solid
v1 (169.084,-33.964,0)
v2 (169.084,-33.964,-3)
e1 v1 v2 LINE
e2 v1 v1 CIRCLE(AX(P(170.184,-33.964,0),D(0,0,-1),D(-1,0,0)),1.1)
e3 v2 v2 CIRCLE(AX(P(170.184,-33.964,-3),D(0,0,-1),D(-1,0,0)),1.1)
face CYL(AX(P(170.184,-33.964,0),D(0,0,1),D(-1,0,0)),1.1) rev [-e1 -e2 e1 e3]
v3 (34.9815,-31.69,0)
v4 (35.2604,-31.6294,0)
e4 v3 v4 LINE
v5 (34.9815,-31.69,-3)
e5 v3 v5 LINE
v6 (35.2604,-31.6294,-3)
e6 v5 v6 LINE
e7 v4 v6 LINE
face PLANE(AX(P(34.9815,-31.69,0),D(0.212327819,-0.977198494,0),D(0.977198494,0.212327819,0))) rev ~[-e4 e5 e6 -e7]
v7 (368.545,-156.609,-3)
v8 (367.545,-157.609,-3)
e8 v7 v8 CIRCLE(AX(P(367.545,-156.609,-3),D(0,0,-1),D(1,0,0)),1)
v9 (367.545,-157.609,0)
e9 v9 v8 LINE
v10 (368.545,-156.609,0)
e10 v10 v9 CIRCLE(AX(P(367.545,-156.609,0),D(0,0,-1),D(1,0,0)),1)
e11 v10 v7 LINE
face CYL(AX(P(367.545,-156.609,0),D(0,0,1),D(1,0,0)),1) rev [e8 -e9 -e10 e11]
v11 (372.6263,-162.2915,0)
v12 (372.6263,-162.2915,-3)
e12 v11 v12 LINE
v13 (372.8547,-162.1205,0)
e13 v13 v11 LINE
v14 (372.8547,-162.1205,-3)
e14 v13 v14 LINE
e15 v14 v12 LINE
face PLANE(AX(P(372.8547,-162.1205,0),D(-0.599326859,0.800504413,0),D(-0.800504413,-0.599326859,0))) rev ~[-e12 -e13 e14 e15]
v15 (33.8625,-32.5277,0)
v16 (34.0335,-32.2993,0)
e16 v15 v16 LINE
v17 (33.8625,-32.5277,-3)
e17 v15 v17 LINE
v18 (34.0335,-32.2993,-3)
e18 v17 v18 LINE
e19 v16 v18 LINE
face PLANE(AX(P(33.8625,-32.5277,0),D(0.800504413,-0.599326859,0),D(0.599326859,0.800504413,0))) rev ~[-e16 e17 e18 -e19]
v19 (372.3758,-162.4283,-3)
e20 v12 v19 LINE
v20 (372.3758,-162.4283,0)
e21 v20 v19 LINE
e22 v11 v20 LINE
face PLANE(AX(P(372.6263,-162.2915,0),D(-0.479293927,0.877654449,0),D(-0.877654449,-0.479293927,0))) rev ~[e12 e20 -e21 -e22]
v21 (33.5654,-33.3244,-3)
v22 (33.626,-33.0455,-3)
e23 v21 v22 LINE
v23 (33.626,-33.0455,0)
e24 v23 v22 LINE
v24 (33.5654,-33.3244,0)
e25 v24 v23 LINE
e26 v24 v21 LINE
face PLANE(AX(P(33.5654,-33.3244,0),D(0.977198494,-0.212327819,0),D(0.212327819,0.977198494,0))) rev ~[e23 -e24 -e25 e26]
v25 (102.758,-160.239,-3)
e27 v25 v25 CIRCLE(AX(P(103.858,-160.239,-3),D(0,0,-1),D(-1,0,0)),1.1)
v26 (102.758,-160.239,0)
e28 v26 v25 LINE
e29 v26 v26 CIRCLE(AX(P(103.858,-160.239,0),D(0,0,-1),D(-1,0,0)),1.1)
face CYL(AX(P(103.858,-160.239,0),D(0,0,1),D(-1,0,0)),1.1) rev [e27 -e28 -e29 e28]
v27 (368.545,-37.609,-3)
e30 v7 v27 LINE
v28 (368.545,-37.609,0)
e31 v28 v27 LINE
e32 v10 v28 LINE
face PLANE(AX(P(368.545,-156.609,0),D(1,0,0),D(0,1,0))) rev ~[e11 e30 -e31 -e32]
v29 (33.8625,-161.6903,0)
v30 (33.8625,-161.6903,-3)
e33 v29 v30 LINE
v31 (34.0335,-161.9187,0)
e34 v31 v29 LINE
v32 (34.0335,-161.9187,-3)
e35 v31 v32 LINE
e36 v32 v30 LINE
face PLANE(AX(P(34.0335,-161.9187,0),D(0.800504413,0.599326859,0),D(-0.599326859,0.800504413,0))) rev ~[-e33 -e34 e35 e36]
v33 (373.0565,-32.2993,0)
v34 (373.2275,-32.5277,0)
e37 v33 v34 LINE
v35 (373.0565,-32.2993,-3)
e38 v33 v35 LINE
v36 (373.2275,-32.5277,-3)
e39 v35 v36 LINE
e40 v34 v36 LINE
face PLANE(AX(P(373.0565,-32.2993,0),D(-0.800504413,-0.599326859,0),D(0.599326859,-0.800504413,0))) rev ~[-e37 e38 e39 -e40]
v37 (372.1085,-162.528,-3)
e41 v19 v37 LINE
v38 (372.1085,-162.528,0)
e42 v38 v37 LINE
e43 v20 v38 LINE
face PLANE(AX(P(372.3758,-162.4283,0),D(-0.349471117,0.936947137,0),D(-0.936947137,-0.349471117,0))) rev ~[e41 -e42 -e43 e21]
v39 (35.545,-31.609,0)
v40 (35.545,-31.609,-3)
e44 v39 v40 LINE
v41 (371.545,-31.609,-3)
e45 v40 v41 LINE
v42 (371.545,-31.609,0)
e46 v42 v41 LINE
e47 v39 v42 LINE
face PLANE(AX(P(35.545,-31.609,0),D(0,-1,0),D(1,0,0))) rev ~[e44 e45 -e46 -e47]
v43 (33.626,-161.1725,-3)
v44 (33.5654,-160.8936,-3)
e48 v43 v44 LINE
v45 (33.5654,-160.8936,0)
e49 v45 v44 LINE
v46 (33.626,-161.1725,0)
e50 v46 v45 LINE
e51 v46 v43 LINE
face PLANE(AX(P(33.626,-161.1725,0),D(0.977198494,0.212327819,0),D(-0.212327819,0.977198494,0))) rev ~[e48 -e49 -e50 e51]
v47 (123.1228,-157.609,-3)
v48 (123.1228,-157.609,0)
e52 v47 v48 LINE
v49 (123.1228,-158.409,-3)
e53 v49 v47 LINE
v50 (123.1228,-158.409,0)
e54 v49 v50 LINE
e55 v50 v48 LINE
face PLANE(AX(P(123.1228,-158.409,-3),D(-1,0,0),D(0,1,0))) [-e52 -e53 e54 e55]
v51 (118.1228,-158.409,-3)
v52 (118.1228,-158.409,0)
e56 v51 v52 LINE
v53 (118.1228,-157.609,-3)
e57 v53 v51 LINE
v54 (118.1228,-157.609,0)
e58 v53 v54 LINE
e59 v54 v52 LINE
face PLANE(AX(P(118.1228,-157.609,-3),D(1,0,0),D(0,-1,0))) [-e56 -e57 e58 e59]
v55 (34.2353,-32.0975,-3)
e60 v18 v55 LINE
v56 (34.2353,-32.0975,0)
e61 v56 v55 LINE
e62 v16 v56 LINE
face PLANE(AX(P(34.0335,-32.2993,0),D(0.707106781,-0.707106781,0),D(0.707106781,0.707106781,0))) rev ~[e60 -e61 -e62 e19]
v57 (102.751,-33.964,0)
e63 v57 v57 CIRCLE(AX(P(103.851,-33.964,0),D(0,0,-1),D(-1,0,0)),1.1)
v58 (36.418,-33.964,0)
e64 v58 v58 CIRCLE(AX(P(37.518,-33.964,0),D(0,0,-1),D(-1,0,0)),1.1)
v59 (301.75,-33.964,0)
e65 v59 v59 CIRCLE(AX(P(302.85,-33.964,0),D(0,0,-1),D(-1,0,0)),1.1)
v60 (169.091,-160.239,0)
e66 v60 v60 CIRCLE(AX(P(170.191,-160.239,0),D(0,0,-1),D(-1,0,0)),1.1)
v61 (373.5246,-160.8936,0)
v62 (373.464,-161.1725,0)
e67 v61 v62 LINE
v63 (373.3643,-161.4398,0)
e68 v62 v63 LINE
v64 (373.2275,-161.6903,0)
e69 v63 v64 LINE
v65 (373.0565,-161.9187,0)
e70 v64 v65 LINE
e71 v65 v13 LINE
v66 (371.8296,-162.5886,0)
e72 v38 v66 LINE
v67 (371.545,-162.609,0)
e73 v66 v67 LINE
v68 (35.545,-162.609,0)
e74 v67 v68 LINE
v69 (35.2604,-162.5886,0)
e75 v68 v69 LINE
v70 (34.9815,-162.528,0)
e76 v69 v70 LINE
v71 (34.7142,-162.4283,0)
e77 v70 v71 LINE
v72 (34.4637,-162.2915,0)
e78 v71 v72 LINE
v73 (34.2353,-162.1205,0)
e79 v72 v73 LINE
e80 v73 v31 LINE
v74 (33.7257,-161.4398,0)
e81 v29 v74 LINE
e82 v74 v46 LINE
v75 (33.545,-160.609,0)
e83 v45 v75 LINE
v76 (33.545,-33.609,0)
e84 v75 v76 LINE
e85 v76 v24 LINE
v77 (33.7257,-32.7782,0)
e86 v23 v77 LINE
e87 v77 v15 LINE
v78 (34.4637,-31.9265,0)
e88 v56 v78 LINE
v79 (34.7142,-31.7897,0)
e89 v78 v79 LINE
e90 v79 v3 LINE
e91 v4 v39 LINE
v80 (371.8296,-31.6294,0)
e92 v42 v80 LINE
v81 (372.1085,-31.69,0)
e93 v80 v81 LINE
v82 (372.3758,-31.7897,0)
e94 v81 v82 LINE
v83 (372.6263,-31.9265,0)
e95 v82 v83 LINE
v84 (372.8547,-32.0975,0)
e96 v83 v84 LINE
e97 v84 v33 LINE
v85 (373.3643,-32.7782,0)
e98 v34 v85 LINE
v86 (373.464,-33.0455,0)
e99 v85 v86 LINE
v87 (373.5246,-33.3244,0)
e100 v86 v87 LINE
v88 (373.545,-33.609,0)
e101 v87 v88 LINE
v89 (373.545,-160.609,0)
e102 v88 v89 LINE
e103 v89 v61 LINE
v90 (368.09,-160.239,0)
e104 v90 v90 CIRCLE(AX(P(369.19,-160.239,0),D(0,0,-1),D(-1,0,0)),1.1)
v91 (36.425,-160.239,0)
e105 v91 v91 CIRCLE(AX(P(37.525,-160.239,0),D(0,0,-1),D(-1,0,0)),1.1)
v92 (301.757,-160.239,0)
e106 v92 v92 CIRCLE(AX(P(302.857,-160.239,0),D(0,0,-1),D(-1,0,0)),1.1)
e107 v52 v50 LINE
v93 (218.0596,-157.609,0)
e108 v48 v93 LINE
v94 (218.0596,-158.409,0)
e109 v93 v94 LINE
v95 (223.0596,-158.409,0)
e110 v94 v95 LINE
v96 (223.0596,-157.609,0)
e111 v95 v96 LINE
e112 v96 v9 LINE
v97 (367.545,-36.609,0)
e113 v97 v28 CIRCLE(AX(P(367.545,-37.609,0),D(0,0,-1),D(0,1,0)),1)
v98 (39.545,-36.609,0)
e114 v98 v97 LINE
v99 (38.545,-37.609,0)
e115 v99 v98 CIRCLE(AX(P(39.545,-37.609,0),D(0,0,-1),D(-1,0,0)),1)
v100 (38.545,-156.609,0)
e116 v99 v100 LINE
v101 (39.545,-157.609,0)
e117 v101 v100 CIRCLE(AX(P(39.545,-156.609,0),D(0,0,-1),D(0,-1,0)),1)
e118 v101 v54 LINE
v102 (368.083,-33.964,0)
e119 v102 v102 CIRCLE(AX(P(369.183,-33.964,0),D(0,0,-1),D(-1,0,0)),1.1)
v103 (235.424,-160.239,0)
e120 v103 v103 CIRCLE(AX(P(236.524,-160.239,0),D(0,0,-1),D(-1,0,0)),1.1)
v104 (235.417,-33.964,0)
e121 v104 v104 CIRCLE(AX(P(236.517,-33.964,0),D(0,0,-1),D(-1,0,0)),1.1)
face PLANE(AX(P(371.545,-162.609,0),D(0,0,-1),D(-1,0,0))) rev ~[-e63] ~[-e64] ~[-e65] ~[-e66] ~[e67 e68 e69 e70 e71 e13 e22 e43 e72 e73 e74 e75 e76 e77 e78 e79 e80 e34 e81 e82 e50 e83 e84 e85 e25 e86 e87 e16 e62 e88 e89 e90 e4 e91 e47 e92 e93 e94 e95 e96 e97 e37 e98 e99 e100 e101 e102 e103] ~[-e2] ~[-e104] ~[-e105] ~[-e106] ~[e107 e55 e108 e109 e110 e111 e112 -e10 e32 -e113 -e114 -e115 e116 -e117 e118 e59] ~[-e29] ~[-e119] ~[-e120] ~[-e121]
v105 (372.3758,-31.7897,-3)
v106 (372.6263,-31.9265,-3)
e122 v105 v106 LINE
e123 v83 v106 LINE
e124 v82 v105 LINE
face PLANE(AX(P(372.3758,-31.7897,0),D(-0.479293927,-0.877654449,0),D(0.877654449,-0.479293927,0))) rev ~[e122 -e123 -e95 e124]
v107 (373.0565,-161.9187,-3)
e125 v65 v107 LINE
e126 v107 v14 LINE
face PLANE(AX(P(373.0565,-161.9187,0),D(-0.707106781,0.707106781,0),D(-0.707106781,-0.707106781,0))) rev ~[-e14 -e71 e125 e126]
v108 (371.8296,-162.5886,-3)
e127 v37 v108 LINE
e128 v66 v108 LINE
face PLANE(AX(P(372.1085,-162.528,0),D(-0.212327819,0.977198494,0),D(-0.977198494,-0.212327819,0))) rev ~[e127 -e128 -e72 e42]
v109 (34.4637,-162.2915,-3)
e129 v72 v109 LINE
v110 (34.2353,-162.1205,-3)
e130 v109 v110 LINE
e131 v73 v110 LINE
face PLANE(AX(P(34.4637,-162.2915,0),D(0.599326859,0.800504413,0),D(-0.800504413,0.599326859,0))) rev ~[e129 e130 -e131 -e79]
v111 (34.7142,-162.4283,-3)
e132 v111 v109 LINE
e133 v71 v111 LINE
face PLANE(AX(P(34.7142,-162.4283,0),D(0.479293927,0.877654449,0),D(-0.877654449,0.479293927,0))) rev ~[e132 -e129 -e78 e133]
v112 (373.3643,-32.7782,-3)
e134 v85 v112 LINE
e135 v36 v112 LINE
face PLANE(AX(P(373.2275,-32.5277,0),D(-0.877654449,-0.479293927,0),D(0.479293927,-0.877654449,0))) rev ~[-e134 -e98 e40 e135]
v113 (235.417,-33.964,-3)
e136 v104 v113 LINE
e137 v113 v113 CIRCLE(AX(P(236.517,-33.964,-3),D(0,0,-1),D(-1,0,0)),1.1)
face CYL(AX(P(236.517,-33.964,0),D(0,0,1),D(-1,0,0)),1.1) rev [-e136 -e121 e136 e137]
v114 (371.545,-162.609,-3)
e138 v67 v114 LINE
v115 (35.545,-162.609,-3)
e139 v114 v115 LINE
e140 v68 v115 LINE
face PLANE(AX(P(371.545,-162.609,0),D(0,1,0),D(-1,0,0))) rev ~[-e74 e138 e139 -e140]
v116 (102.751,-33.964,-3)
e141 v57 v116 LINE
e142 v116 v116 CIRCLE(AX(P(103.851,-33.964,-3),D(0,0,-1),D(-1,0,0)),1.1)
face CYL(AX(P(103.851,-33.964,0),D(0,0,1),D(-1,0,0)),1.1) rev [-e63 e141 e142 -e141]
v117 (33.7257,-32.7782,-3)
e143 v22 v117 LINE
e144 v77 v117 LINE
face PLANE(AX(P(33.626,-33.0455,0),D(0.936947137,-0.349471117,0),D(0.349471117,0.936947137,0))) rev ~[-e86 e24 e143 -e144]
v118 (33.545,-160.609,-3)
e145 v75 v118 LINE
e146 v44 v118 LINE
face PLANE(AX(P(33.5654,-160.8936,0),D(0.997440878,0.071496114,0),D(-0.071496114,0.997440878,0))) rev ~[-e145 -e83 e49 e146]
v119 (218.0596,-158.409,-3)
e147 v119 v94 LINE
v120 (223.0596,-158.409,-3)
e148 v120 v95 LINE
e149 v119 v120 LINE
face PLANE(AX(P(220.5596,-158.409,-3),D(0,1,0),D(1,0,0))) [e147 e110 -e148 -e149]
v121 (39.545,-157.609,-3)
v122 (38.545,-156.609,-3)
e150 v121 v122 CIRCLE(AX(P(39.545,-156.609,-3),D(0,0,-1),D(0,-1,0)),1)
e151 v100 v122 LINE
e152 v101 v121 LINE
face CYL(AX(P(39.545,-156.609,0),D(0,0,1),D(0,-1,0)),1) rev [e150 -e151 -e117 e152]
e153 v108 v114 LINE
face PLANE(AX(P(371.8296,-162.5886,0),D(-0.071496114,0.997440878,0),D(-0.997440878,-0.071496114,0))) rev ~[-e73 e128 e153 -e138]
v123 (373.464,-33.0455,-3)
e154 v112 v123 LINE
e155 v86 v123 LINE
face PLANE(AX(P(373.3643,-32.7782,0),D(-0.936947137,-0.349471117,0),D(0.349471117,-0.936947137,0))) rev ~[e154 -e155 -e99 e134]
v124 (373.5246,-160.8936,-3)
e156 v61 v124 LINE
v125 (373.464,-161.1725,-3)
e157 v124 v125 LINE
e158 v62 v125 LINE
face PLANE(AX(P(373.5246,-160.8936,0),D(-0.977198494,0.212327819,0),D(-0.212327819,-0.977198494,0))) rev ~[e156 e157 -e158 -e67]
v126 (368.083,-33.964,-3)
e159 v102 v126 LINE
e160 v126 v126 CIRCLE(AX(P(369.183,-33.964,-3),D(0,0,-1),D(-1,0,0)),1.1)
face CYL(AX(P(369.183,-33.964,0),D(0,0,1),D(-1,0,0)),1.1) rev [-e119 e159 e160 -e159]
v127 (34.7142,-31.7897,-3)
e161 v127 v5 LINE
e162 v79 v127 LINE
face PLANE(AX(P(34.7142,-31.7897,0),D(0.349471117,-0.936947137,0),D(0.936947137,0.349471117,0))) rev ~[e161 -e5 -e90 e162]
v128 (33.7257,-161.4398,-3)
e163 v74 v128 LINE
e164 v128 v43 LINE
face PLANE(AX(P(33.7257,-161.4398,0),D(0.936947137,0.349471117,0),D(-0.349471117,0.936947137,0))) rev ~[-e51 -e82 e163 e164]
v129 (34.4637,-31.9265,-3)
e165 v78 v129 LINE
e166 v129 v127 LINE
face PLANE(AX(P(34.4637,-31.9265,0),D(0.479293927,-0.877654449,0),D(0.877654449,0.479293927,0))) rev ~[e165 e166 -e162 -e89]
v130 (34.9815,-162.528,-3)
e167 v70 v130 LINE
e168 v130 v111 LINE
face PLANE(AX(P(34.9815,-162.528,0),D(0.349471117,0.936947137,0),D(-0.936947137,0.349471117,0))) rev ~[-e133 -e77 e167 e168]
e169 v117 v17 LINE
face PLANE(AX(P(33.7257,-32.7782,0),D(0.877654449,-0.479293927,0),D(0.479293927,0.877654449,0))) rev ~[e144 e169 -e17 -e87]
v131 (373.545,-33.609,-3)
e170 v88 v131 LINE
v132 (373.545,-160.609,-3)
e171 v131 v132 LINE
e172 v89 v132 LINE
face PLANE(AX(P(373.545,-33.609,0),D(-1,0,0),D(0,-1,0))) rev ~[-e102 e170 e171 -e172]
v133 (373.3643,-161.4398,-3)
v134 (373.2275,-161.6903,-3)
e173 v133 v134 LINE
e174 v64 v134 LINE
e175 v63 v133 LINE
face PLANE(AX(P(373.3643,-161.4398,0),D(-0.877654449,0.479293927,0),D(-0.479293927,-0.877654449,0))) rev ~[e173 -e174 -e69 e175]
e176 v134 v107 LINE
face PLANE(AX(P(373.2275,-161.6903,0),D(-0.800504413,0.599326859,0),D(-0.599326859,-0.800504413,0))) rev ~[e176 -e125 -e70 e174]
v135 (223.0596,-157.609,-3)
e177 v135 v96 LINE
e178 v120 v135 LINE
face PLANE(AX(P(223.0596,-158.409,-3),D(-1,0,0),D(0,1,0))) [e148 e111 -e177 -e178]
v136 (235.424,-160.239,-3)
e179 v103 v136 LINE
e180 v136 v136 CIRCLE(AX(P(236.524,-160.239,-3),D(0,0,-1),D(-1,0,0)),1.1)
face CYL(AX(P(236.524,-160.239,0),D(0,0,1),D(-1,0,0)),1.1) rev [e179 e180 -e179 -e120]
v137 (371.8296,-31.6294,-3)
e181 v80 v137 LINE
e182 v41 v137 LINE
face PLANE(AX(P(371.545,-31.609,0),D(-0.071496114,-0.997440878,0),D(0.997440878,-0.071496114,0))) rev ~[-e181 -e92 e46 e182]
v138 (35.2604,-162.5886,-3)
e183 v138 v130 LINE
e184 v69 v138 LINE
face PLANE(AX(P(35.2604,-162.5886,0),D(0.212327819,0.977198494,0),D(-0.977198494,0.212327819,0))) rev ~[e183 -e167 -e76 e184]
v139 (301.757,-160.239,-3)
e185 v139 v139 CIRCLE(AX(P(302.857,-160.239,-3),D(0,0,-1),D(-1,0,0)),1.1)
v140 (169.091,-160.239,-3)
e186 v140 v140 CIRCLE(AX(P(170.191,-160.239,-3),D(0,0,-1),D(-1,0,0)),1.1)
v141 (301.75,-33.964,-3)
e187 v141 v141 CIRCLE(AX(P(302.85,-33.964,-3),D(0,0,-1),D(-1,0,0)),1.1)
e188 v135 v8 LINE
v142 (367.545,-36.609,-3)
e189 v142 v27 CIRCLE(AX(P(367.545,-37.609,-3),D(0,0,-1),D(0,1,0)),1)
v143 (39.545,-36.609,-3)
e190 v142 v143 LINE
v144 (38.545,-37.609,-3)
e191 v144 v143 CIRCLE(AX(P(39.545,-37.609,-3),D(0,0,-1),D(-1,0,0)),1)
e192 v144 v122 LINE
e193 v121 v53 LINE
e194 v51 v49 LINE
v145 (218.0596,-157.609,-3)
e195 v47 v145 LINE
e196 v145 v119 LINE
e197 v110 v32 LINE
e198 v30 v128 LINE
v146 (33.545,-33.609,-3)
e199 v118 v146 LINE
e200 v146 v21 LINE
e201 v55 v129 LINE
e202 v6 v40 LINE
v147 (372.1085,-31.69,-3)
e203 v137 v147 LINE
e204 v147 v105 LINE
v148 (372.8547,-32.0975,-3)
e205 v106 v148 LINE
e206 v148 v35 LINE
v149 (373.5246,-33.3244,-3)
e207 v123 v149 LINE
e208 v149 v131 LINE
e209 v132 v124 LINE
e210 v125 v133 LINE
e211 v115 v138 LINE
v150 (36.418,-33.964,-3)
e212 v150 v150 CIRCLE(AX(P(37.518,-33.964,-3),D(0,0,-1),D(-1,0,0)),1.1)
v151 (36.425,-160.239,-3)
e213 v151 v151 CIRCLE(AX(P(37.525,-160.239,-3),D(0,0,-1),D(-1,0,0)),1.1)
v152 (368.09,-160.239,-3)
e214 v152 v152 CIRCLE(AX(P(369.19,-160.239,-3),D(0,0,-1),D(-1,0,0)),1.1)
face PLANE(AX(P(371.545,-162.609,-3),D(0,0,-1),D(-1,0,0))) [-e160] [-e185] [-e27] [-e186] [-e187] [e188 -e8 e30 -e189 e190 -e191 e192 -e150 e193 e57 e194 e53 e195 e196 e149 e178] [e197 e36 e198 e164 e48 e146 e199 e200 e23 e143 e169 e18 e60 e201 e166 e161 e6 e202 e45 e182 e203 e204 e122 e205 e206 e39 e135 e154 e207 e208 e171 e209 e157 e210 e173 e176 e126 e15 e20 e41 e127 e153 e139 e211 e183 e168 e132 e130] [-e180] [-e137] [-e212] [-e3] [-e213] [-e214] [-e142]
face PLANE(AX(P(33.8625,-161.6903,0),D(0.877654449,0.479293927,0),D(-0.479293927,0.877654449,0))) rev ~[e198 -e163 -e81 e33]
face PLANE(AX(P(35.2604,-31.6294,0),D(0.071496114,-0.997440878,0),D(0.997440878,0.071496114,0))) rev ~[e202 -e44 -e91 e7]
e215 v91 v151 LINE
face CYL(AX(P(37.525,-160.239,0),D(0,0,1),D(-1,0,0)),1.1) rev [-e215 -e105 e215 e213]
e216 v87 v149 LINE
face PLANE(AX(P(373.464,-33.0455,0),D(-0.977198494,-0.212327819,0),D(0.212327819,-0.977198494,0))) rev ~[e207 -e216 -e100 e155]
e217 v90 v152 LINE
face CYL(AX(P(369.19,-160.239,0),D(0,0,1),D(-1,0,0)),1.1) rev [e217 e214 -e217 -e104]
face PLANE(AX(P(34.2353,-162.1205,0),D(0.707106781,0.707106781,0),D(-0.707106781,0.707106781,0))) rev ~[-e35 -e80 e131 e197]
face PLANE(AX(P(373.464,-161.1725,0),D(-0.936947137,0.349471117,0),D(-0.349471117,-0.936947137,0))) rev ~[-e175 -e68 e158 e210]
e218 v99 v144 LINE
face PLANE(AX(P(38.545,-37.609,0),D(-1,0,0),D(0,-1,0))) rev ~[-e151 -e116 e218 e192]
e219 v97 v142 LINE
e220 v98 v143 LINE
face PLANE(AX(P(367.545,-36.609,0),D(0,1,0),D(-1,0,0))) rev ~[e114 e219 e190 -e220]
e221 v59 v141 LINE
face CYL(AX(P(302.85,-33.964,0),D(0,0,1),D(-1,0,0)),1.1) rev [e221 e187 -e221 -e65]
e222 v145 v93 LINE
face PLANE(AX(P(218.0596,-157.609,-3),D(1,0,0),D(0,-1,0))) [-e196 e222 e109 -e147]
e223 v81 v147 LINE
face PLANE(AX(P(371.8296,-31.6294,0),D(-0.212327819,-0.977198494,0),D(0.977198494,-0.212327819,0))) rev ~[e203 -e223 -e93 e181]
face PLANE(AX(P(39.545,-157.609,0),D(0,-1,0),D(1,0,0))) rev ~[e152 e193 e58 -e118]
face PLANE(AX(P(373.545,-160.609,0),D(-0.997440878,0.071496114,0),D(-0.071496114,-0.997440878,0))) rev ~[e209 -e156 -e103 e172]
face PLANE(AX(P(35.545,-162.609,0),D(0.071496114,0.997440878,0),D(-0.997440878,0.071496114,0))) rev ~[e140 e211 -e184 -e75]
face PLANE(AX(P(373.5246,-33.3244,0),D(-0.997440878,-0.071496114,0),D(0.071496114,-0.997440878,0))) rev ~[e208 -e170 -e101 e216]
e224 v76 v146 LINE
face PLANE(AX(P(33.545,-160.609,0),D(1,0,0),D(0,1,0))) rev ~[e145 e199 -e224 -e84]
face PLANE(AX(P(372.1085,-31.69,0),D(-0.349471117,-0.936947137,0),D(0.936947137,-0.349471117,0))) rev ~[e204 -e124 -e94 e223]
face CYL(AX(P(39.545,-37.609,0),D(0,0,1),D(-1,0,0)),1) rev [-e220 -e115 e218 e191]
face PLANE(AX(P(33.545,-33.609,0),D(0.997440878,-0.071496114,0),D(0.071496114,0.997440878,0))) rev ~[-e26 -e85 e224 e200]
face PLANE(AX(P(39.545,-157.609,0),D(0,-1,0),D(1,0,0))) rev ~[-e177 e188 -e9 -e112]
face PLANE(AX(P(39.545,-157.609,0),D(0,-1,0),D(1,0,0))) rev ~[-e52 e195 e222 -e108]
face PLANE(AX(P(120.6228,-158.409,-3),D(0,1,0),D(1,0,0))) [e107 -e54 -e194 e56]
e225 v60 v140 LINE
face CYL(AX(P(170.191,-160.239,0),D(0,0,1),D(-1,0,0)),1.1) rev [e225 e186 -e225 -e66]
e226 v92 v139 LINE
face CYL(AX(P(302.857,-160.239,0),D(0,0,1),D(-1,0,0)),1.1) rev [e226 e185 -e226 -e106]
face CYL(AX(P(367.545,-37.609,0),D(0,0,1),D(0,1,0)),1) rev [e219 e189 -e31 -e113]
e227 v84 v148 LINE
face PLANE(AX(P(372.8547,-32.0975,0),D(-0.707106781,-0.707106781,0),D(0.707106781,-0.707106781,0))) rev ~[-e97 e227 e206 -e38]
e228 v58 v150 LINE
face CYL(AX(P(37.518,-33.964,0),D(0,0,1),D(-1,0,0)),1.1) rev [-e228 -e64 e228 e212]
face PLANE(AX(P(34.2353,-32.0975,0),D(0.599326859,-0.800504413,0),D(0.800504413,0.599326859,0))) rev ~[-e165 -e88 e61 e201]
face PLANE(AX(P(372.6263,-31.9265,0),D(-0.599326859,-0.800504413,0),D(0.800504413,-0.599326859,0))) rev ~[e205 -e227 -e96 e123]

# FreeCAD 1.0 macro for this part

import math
import FreeCAD as App
import Part
import Sketcher

V = App.Vector
Q = App.Units.Quantity

doc = App.newDocument("Part")
body = doc.addObject("PartDesign::Body", "Body")

# Sketch on XY plane
sketch1 = body.newObject("Sketcher::SketchObject", "Sketch")
sketch1.AttachmentSupport = (doc.getObject("XY_Plane"), [""])
sketch1.MapMode = "FlatFace"
sketch1.addGeometry([
    Part.LineSegment(V(35.2604, -31.6294, 0), V(35.545, -31.609, 0)),  # 0
    Part.LineSegment(V(35.545, -31.609, 0), V(371.545, -31.609, 0)),  # 1
    Part.LineSegment(V(371.545, -31.609, 0), V(371.8296, -31.6294, 0)),  # 2
    Part.LineSegment(V(371.8296, -31.6294, 0), V(372.1085, -31.69, 0)),  # 3
    Part.LineSegment(V(372.1085, -31.69, 0), V(372.3758, -31.7897, 0)),  # 4
    Part.LineSegment(V(372.3758, -31.7897, 0), V(372.6263, -31.9265, 0)),  # 5
    Part.LineSegment(V(372.6263, -31.9265, 0), V(372.8547, -32.0975, 0)),  # 6
    Part.LineSegment(V(372.8547, -32.0975, 0), V(373.0565, -32.2993, 0)),  # 7
    Part.LineSegment(V(373.0565, -32.2993, 0), V(373.2275, -32.5277, 0)),  # 8
    Part.LineSegment(V(373.2275, -32.5277, 0), V(373.3643, -32.7782, 0)),  # 9
    Part.LineSegment(V(373.3643, -32.7782, 0), V(373.464, -33.0455, 0)),  # 10
    Part.LineSegment(V(373.464, -33.0455, 0), V(373.5246, -33.3244, 0)),  # 11
    Part.LineSegment(V(373.5246, -33.3244, 0), V(373.545, -33.609, 0)),  # 12
    Part.LineSegment(V(373.545, -33.609, 0), V(373.545, -160.609, 0)),  # 13
    Part.LineSegment(V(373.545, -160.609, 0), V(373.5246, -160.8936, 0)),  # 14
    Part.LineSegment(V(373.5246, -160.8936, 0), V(373.464, -161.1725, 0)),  # 15
    Part.LineSegment(V(373.464, -161.1725, 0), V(373.3643, -161.4398, 0)),  # 16
    Part.LineSegment(V(373.3643, -161.4398, 0), V(373.2275, -161.6903, 0)),  # 17
    Part.LineSegment(V(373.2275, -161.6903, 0), V(373.0565, -161.9187, 0)),  # 18
    Part.LineSegment(V(373.0565, -161.9187, 0), V(372.8547, -162.1205, 0)),  # 19
    Part.LineSegment(V(372.8547, -162.1205, 0), V(372.6263, -162.2915, 0)),  # 20
    Part.LineSegment(V(372.6263, -162.2915, 0), V(372.3758, -162.4283, 0)),  # 21
    Part.LineSegment(V(372.3758, -162.4283, 0), V(372.1085, -162.528, 0)),  # 22
    Part.LineSegment(V(372.1085, -162.528, 0), V(371.8296, -162.5886, 0)),  # 23
    Part.LineSegment(V(371.8296, -162.5886, 0), V(371.545, -162.609, 0)),  # 24
    Part.LineSegment(V(371.545, -162.609, 0), V(35.545, -162.609, 0)),  # 25
    Part.LineSegment(V(35.545, -162.609, 0), V(35.2604, -162.5886, 0)),  # 26
    Part.LineSegment(V(35.2604, -162.5886, 0), V(34.9815, -162.528, 0)),  # 27
    Part.LineSegment(V(34.9815, -162.528, 0), V(34.7142, -162.4283, 0)),  # 28
    Part.LineSegment(V(34.7142, -162.4283, 0), V(34.4637, -162.2915, 0)),  # 29
    Part.LineSegment(V(34.4637, -162.2915, 0), V(34.2353, -162.1205, 0)),  # 30
    Part.LineSegment(V(34.2353, -162.1205, 0), V(34.0335, -161.9187, 0)),  # 31
    Part.LineSegment(V(34.0335, -161.9187, 0), V(33.8625, -161.6903, 0)),  # 32
    Part.LineSegment(V(33.8625, -161.6903, 0), V(33.7257, -161.4398, 0)),  # 33
    Part.LineSegment(V(33.7257, -161.4398, 0), V(33.626, -161.1725, 0)),  # 34
    Part.LineSegment(V(33.626, -161.1725, 0), V(33.5654, -160.8936, 0)),  # 35
    Part.LineSegment(V(33.5654, -160.8936, 0), V(33.545, -160.609, 0)),  # 36
    Part.LineSegment(V(33.545, -160.609, 0), V(33.545, -33.609, 0)),  # 37
    Part.LineSegment(V(33.545, -33.609, 0), V(33.5654, -33.3244, 0)),  # 38
    Part.LineSegment(V(33.5654, -33.3244, 0), V(33.626, -33.0455, 0)),  # 39
    Part.LineSegment(V(33.626, -33.0455, 0), V(33.7257, -32.7782, 0)),  # 40
    Part.LineSegment(V(33.7257, -32.7782, 0), V(33.8625, -32.5277, 0)),  # 41
    Part.LineSegment(V(33.8625, -32.5277, 0), V(34.0335, -32.2993, 0)),  # 42
    Part.LineSegment(V(34.0335, -32.2993, 0), V(34.2353, -32.0975, 0)),  # 43
    Part.LineSegment(V(34.2353, -32.0975, 0), V(34.4637, -31.9265, 0)),  # 44
    Part.LineSegment(V(34.4637, -31.9265, 0), V(34.7142, -31.7897, 0)),  # 45
    Part.LineSegment(V(34.7142, -31.7897, 0), V(34.9815, -31.69, 0)),  # 46
    Part.LineSegment(V(34.9815, -31.69, 0), V(35.2604, -31.6294, 0)),  # 47
    Part.Circle(V(369.19, -160.239, 0), V(0, 0, 1), 1.1),  # 48
    Part.Circle(V(302.857, -160.239, 0), V(0, 0, 1), 1.1),  # 49
    Part.Circle(V(236.524, -160.239, 0), V(0, 0, 1), 1.1),  # 50
    Part.Circle(V(170.191, -160.239, 0), V(0, 0, 1), 1.1),  # 51
    Part.Circle(V(103.858, -160.239, 0), V(0, 0, 1), 1.1),  # 52
    Part.Circle(V(37.525, -160.239, 0), V(0, 0, 1), 1.1),  # 53
    Part.Circle(V(369.183, -33.964, 0), V(0, 0, 1), 1.1),  # 54
    Part.Circle(V(302.85, -33.964, 0), V(0, 0, 1), 1.1),  # 55
    Part.Circle(V(236.517, -33.964, 0), V(0, 0, 1), 1.1),  # 56
    Part.LineSegment(V(367.545, -36.609, 0), V(39.545, -36.609, 0)),  # 57
    Part.ArcOfCircle(Part.Circle(V(39.545, -37.609, 0), V(0, 0, 1), 1), math.radians(90), math.radians(180)),  # 58
    Part.LineSegment(V(38.545, -37.609, 0), V(38.545, -156.609, 0)),  # 59
    Part.ArcOfCircle(Part.Circle(V(39.545, -156.609, 0), V(0, 0, 1), 1), math.radians(180), math.radians(270)),  # 60
    Part.LineSegment(V(39.545, -157.609, 0), V(367.545, -157.609, 0)),  # 61
    Part.ArcOfCircle(Part.Circle(V(367.545, -156.609, 0), V(0, 0, 1), 1), math.radians(-90), math.radians(0)),  # 62
    Part.LineSegment(V(368.545, -156.609, 0), V(368.545, -37.609, 0)),  # 63
    Part.ArcOfCircle(Part.Circle(V(367.545, -37.609, 0), V(0, 0, 1), 1), math.radians(0), math.radians(90)),  # 64
    Part.Circle(V(170.184, -33.964, 0), V(0, 0, 1), 1.1),  # 65
    Part.Circle(V(103.851, -33.964, 0), V(0, 0, 1), 1.1),  # 66
    Part.Circle(V(37.518, -33.964, 0), V(0, 0, 1), 1.1),  # 67
], False)
sketch1.addConstraint([
    Sketcher.Constraint("Coincident", 0, 2, 1, 1),
    Sketcher.Constraint("Coincident", 1, 2, 2, 1),
    Sketcher.Constraint("Coincident", 2, 2, 3, 1),
    Sketcher.Constraint("Coincident", 3, 2, 4, 1),
    Sketcher.Constraint("Coincident", 4, 2, 5, 1),
    Sketcher.Constraint("Coincident", 5, 2, 6, 1),
    Sketcher.Constraint("Coincident", 6, 2, 7, 1),
    Sketcher.Constraint("Coincident", 7, 2, 8, 1),
    Sketcher.Constraint("Coincident", 8, 2, 9, 1),
    Sketcher.Constraint("Coincident", 9, 2, 10, 1),
    Sketcher.Constraint("Coincident", 10, 2, 11, 1),
    Sketcher.Constraint("Coincident", 11, 2, 12, 1),
    Sketcher.Constraint("Coincident", 12, 2, 13, 1),
    Sketcher.Constraint("Coincident", 13, 2, 14, 1),
    Sketcher.Constraint("Coincident", 14, 2, 15, 1),
    Sketcher.Constraint("Coincident", 15, 2, 16, 1),
    Sketcher.Constraint("Coincident", 16, 2, 17, 1),
    Sketcher.Constraint("Coincident", 17, 2, 18, 1),
    Sketcher.Constraint("Coincident", 18, 2, 19, 1),
    Sketcher.Constraint("Coincident", 19, 2, 20, 1),
    Sketcher.Constraint("Coincident", 20, 2, 21, 1),
    Sketcher.Constraint("Coincident", 21, 2, 22, 1),
    Sketcher.Constraint("Coincident", 22, 2, 23, 1),
    Sketcher.Constraint("Coincident", 23, 2, 24, 1),
    Sketcher.Constraint("Coincident", 24, 2, 25, 1),
    Sketcher.Constraint("Coincident", 25, 2, 26, 1),
    Sketcher.Constraint("Coincident", 26, 2, 27, 1),
    Sketcher.Constraint("Coincident", 27, 2, 28, 1),
    Sketcher.Constraint("Coincident", 28, 2, 29, 1),
    Sketcher.Constraint("Coincident", 29, 2, 30, 1),
    Sketcher.Constraint("Coincident", 30, 2, 31, 1),
    Sketcher.Constraint("Coincident", 31, 2, 32, 1),
    Sketcher.Constraint("Coincident", 32, 2, 33, 1),
    Sketcher.Constraint("Coincident", 33, 2, 34, 1),
    Sketcher.Constraint("Coincident", 34, 2, 35, 1),
    Sketcher.Constraint("Coincident", 35, 2, 36, 1),
    Sketcher.Constraint("Coincident", 36, 2, 37, 1),
    Sketcher.Constraint("Coincident", 37, 2, 38, 1),
    Sketcher.Constraint("Coincident", 38, 2, 39, 1),
    Sketcher.Constraint("Coincident", 39, 2, 40, 1),
    Sketcher.Constraint("Coincident", 40, 2, 41, 1),
    Sketcher.Constraint("Coincident", 41, 2, 42, 1),
    Sketcher.Constraint("Coincident", 42, 2, 43, 1),
    Sketcher.Constraint("Coincident", 43, 2, 44, 1),
    Sketcher.Constraint("Coincident", 44, 2, 45, 1),
    Sketcher.Constraint("Coincident", 45, 2, 46, 1),
    Sketcher.Constraint("Coincident", 46, 2, 47, 1),
    Sketcher.Constraint("Coincident", 47, 2, 0, 1),
    Sketcher.Constraint("Tangent", 57, 2, 58, 1),
    Sketcher.Constraint("Tangent", 58, 2, 59, 1),
    Sketcher.Constraint("Tangent", 59, 2, 60, 1),
    Sketcher.Constraint("Tangent", 60, 2, 61, 1),
    Sketcher.Constraint("Tangent", 61, 2, 62, 1),
    Sketcher.Constraint("Tangent", 62, 2, 63, 1),
    Sketcher.Constraint("Tangent", 63, 2, 64, 1),
    Sketcher.Constraint("Tangent", 64, 2, 57, 1),
    Sketcher.Constraint("Horizontal", 1),
    Sketcher.Constraint("Vertical", 13),
    Sketcher.Constraint("Horizontal", 25),
    Sketcher.Constraint("Vertical", 37),
    Sketcher.Constraint("Horizontal", 57),
    Sketcher.Constraint("Vertical", 59),
    Sketcher.Constraint("Horizontal", 61),
    Sketcher.Constraint("Vertical", 63),
    Sketcher.Constraint("Equal", 48, 49),
    Sketcher.Constraint("Equal", 49, 50),
    Sketcher.Constraint("Equal", 50, 51),
    Sketcher.Constraint("Equal", 51, 52),
    Sketcher.Constraint("Equal", 52, 53),
    Sketcher.Constraint("Equal", 53, 54),
    Sketcher.Constraint("Equal", 54, 55),
    Sketcher.Constraint("Equal", 55, 56),
    Sketcher.Constraint("Equal", 58, 60),
    Sketcher.Constraint("Equal", 60, 62),
    Sketcher.Constraint("Equal", 62, 64),
    Sketcher.Constraint("Equal", 56, 65),
    Sketcher.Constraint("Equal", 65, 66),
    Sketcher.Constraint("Equal", 66, 67),
    Sketcher.Constraint("Perpendicular", 0, 12),
    Sketcher.Constraint("Perpendicular", 2, 14),
    Sketcher.Constraint("Perpendicular", 3, 15),
    Sketcher.Constraint("Perpendicular", 4, 16),
    Sketcher.Constraint("Perpendicular", 5, 17),
    Sketcher.Constraint("Perpendicular", 6, 18),
    Sketcher.Constraint("Perpendicular", 7, 19),
    Sketcher.Constraint("Perpendicular", 8, 20),
    Sketcher.Constraint("Perpendicular", 9, 21),
    Sketcher.Constraint("Perpendicular", 10, 22),
    Sketcher.Constraint("Perpendicular", 11, 23),
    Sketcher.Constraint("Perpendicular", 12, 24),
    Sketcher.Constraint("Perpendicular", 14, 26),
    Sketcher.Constraint("Perpendicular", 15, 27),
    Sketcher.Constraint("Perpendicular", 16, 28),
    Sketcher.Constraint("Perpendicular", 17, 29),
    Sketcher.Constraint("Perpendicular", 18, 30),
    Sketcher.Constraint("Perpendicular", 19, 31),
    Sketcher.Constraint("Perpendicular", 20, 32),
    Sketcher.Constraint("Perpendicular", 21, 33),
    Sketcher.Constraint("Perpendicular", 22, 34),
    Sketcher.Constraint("Perpendicular", 23, 35),
    Sketcher.Constraint("Perpendicular", 24, 36),
    Sketcher.Constraint("Perpendicular", 26, 38),
    Sketcher.Constraint("Perpendicular", 27, 39),
    Sketcher.Constraint("Perpendicular", 28, 40),
    Sketcher.Constraint("Perpendicular", 29, 41),
    Sketcher.Constraint("Perpendicular", 30, 42),
    Sketcher.Constraint("Perpendicular", 31, 43),
    Sketcher.Constraint("Perpendicular", 32, 44),
    Sketcher.Constraint("Perpendicular", 33, 45),
    Sketcher.Constraint("Perpendicular", 34, 46),
    Sketcher.Constraint("Perpendicular", 35, 47),
    Sketcher.Constraint("Horizontal", 48, 3, 49, 3),
    Sketcher.Constraint("Horizontal", 49, 3, 50, 3),
    Sketcher.Constraint("Horizontal", 50, 3, 51, 3),
    Sketcher.Constraint("Horizontal", 51, 3, 52, 3),
    Sketcher.Constraint("Horizontal", 52, 3, 53, 3),
    Sketcher.Constraint("Horizontal", 54, 3, 55, 3),
    Sketcher.Constraint("Horizontal", 55, 3, 56, 3),
    Sketcher.Constraint("Horizontal", 56, 3, 65, 3),
    Sketcher.Constraint("Horizontal", 65, 3, 66, 3),
    Sketcher.Constraint("Horizontal", 66, 3, 67, 3),
    Sketcher.Constraint("Horizontal", 23, 2, 26, 2),
    Sketcher.Constraint("Horizontal", 22, 2, 27, 2),
    Sketcher.Constraint("Horizontal", 21, 2, 28, 2),
    Sketcher.Constraint("Horizontal", 20, 2, 29, 2),
    Sketcher.Constraint("Horizontal", 19, 2, 30, 2),
    Sketcher.Constraint("Horizontal", 18, 2, 31, 2),
    Sketcher.Constraint("Horizontal", 17, 2, 32, 2),
    Sketcher.Constraint("Horizontal", 16, 2, 33, 2),
    Sketcher.Constraint("Horizontal", 15, 2, 34, 2),
    Sketcher.Constraint("Horizontal", 14, 2, 35, 2),
    Sketcher.Constraint("Horizontal", 13, 2, 36, 2),
    Sketcher.Constraint("Horizontal", 12, 2, 37, 2),
    Sketcher.Constraint("Horizontal", 11, 2, 38, 2),
    Sketcher.Constraint("Horizontal", 10, 2, 39, 2),
    Sketcher.Constraint("Horizontal", 9, 2, 40, 2),
    Sketcher.Constraint("Horizontal", 8, 2, 41, 2),
    Sketcher.Constraint("Horizontal", 7, 2, 42, 2),
    Sketcher.Constraint("Horizontal", 6, 2, 43, 2),
    Sketcher.Constraint("Horizontal", 5, 2, 44, 2),
    Sketcher.Constraint("Horizontal", 4, 2, 45, 2),
    Sketcher.Constraint("Horizontal", 3, 2, 46, 2),
    Sketcher.Constraint("Horizontal", 2, 2, 47, 2),
    Sketcher.Constraint("Vertical", 11, 2, 14, 2),
    Sketcher.Constraint("Vertical", 10, 2, 15, 2),
    Sketcher.Constraint("Vertical", 9, 2, 16, 2),
    Sketcher.Constraint("Vertical", 8, 2, 17, 2),
    Sketcher.Constraint("Vertical", 7, 2, 18, 2),
    Sketcher.Constraint("Vertical", 6, 2, 19, 2),
    Sketcher.Constraint("Vertical", 5, 2, 20, 2),
    Sketcher.Constraint("Vertical", 4, 2, 21, 2),
    Sketcher.Constraint("Vertical", 3, 2, 22, 2),
    Sketcher.Constraint("Vertical", 2, 2, 23, 2),
    Sketcher.Constraint("Vertical", 1, 2, 24, 2),
    Sketcher.Constraint("Vertical", 0, 2, 25, 2),
    Sketcher.Constraint("Vertical", 35, 2, 38, 2),
    Sketcher.Constraint("Vertical", 34, 2, 39, 2),
    Sketcher.Constraint("Vertical", 33, 2, 40, 2),
    Sketcher.Constraint("Vertical", 32, 2, 41, 2),
    Sketcher.Constraint("Vertical", 31, 2, 42, 2),
    Sketcher.Constraint("Equal", 2, 3),
    Sketcher.Constraint("Equal", 3, 4),
    Sketcher.Constraint("Equal", 4, 5),
    Sketcher.Constraint("Equal", 5, 6),
    Sketcher.Constraint("Equal", 6, 7),
    Sketcher.Constraint("Equal", 7, 8),
    Sketcher.Constraint("Equal", 8, 9),
    Sketcher.Constraint("Equal", 9, 10),
    Sketcher.Constraint("Equal", 10, 11),
    Sketcher.Constraint("Equal", 11, 12),
    Sketcher.Constraint("Radius", 58, Q("1 mm")),
    Sketcher.Constraint("Diameter", 48, Q("2.2 mm")),
    Sketcher.Constraint("DistanceX", 1, 1, 1, 2, Q("336 mm")),
    Sketcher.Constraint("DistanceX", 57, 2, 57, 1, Q("328 mm")),
    Sketcher.Constraint("DistanceY", 13, 2, 13, 1, Q("127 mm")),
    Sketcher.Constraint("DistanceY", 59, 2, 59, 1, Q("119 mm")),
    Sketcher.Constraint("Angle", 0, Q("4.1 deg")),
    Sketcher.Constraint("Angle", 3, Q("-12.2588 deg")),
    Sketcher.Constraint("Angle", 5, Q("-28.6393 deg")),
    Sketcher.Constraint("DistanceX", -1, 1, 48, 3, Q("369.19 mm")),
    Sketcher.Constraint("DistanceX", -1, 1, 55, 3, Q("302.85 mm")),
    Sketcher.Constraint("DistanceY", 3, 2, -1, 1, Q("31.69 mm")),
    Sketcher.Constraint("DistanceY", 48, 3, -1, 1, Q("160.239 mm")),
    Sketcher.Constraint("DistanceX", -1, 1, 49, 3, Q("302.857 mm")),
    Sketcher.Constraint("DistanceX", -1, 1, 50, 3, Q("236.524 mm")),
    Sketcher.Constraint("DistanceX", -1, 1, 51, 3, Q("170.191 mm")),
    Sketcher.Constraint("DistanceX", -1, 1, 52, 3, Q("103.858 mm")),
    Sketcher.Constraint("DistanceX", -1, 1, 53, 3, Q("37.525 mm")),
    Sketcher.Constraint("DistanceX", -1, 1, 54, 3, Q("369.183 mm")),
    Sketcher.Constraint("DistanceY", 54, 3, -1, 1, Q("33.964 mm")),
    Sketcher.Constraint("DistanceX", -1, 1, 56, 3, Q("236.517 mm")),
    Sketcher.Constraint("DistanceX", -1, 1, 58, 3, Q("39.545 mm")),
    Sketcher.Constraint("DistanceY", 58, 3, -1, 1, Q("37.609 mm")),
    Sketcher.Constraint("DistanceX", -1, 1, 65, 3, Q("170.184 mm")),
    Sketcher.Constraint("DistanceX", -1, 1, 66, 3, Q("103.851 mm")),
    Sketcher.Constraint("DistanceX", -1, 1, 67, 3, Q("37.518 mm")),
    Sketcher.Constraint("DistanceX", -1, 1, 0, 2, Q("35.545 mm")),
    Sketcher.Constraint("DistanceY", 0, 2, -1, 1, Q("31.609 mm")),
    Sketcher.Constraint("DistanceX", -1, 1, 10, 2, Q("373.464 mm")),
    Sketcher.Constraint("DistanceX", -1, 1, 4, 2, Q("372.3758 mm")),
])
pad1 = body.newObject("PartDesign::Pad", "Pad")
pad1.Profile = sketch1
pad1.Length = 3
pad1.Reversed = True

# Sketch on XY plane
sketch2 = body.newObject("Sketcher::SketchObject", "Sketch001")
sketch2.AttachmentSupport = (doc.getObject("XY_Plane"), [""])
sketch2.MapMode = "FlatFace"
sketch2.AttachmentOffset = App.Placement(V(0, 0, -3), App.Rotation())
sketch2.addGeometry([
    Part.LineSegment(V(223.1, -158.4, 0), V(218.1, -158.4, 0)),  # 0
    Part.LineSegment(V(218.1, -158.4, 0), V(218.1, -157.6, 0)),  # 1
    Part.LineSegment(V(218.1, -157.6, 0), V(223.1, -157.6, 0)),  # 2
    Part.LineSegment(V(223.1, -157.6, 0), V(223.1, -158.4, 0)),  # 3
    Part.LineSegment(V(123.1, -158.4, 0), V(118.1, -158.4, 0)),  # 4
    Part.LineSegment(V(118.1, -158.4, 0), V(118.1, -157.6, 0)),  # 5
    Part.LineSegment(V(118.1, -157.6, 0), V(123.1, -157.6, 0)),  # 6
    Part.LineSegment(V(123.1, -157.6, 0), V(123.1, -158.4, 0)),  # 7
], False)
sketch2.addConstraint([
    Sketcher.Constraint("Coincident", 0, 2, 1, 1),
    Sketcher.Constraint("Coincident", 1, 2, 2, 1),
    Sketcher.Constraint("Coincident", 2, 2, 3, 1),
    Sketcher.Constraint("Coincident", 3, 2, 0, 1),
    Sketcher.Constraint("Coincident", 4, 2, 5, 1),
    Sketcher.Constraint("Coincident", 5, 2, 6, 1),
    Sketcher.Constraint("Coincident", 6, 2, 7, 1),
    Sketcher.Constraint("Coincident", 7, 2, 4, 1),
    Sketcher.Constraint("Horizontal", 0),
    Sketcher.Constraint("Vertical", 1),
    Sketcher.Constraint("Horizontal", 2),
    Sketcher.Constraint("Vertical", 3),
    Sketcher.Constraint("Horizontal", 4),
    Sketcher.Constraint("Vertical", 5),
    Sketcher.Constraint("Horizontal", 6),
    Sketcher.Constraint("Vertical", 7),
    Sketcher.Constraint("Horizontal", 3, 2, 4, 2),
    Sketcher.Constraint("Horizontal", 2, 2, 5, 2),
    Sketcher.Constraint("Equal", 2, 4),
    Sketcher.Constraint("DistanceX", 0, 2, 0, 1, Q("5 mm")),
    Sketcher.Constraint("DistanceY", 1, 1, 1, 2, Q("0.8 mm")),
    Sketcher.Constraint("DistanceY", 0, 2, -1, 1, Q("158.409 mm")),
    Sketcher.Constraint("DistanceX", -1, 1, 0, 2, Q("218.0596 mm")),
    Sketcher.Constraint("DistanceX", -1, 1, 4, 2, Q("118.1228 mm")),
])
pocket1 = body.newObject("PartDesign::Pocket", "Pocket")
pocket1.Profile = sketch2
pocket1.Length = 10
pocket1.Reversed = True

doc.recompute()
